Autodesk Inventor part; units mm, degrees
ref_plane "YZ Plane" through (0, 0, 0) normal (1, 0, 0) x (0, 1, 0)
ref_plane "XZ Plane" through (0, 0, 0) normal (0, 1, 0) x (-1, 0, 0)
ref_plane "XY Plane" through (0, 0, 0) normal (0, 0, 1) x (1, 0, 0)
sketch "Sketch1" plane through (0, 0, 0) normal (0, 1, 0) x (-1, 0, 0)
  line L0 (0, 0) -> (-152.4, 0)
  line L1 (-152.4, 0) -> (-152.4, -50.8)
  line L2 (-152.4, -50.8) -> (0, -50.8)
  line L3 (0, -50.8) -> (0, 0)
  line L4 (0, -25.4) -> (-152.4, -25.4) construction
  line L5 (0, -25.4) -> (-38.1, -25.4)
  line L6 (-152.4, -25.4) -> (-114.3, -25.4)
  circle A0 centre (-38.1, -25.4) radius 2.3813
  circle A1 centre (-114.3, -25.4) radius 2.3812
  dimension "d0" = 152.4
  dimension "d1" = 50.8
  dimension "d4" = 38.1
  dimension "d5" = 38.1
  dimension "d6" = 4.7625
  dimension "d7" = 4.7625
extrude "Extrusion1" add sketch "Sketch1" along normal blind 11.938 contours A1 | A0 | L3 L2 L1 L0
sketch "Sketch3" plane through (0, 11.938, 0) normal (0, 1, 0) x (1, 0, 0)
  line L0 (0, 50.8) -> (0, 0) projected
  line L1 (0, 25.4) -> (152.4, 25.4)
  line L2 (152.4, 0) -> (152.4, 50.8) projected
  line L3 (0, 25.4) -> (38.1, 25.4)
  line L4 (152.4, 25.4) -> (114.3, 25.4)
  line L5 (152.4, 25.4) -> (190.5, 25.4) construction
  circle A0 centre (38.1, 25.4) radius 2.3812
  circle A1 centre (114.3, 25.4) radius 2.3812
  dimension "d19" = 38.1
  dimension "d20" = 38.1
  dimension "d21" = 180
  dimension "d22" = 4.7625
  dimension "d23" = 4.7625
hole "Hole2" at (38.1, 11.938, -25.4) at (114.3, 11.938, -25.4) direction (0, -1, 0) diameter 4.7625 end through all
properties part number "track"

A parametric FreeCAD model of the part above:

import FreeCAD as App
import Part
import Sketcher
Q = App.Units.Quantity

doc = App.newDocument("Part")
body = doc.addObject("PartDesign::Body", "Body")

sketch1 = body.newObject("Sketcher::SketchObject", "Sketch")
sketch1.AttachmentSupport = (doc.getObject("XZ_Plane"), [""])
sketch1.MapMode = "FlatFace"
sketch1.addGeometry(Part.LineSegment(App.Vector(0, -25, 0), App.Vector(0, 0, 0)), False)
sketch1.addGeometry(Part.LineSegment(App.Vector(0, 0, 0), App.Vector(152, 0, 0)), False)
sketch1.addGeometry(Part.LineSegment(App.Vector(152, 0, 0), App.Vector(152, -25, 0)), False)
sketch1.addGeometry(Part.LineSegment(App.Vector(152, -25, 0), App.Vector(152, -51, 0)), False)
sketch1.addGeometry(Part.LineSegment(App.Vector(152, -51, 0), App.Vector(0, -51, 0)), False)
sketch1.addGeometry(Part.LineSegment(App.Vector(0, -51, 0), App.Vector(0, -25, 0)), False)
sketch1.addConstraint(Sketcher.Constraint("Coincident", 0, 2, 1, 1))
sketch1.addConstraint(Sketcher.Constraint("Coincident", 1, 2, 2, 1))
sketch1.addConstraint(Sketcher.Constraint("Coincident", 2, 2, 3, 1))
sketch1.addConstraint(Sketcher.Constraint("Coincident", 3, 2, 4, 1))
sketch1.addConstraint(Sketcher.Constraint("Coincident", 4, 2, 5, 1))
sketch1.addConstraint(Sketcher.Constraint("Coincident", 5, 2, 0, 1))
sketch1.addConstraint(Sketcher.Constraint("Vertical", 0))
sketch1.addConstraint(Sketcher.Constraint("Horizontal", 1))
sketch1.addConstraint(Sketcher.Constraint("Vertical", 2))
sketch1.addConstraint(Sketcher.Constraint("Vertical", 3))
sketch1.addConstraint(Sketcher.Constraint("Horizontal", 4))
sketch1.addConstraint(Sketcher.Constraint("Vertical", 5))
sketch1.addConstraint(Sketcher.Constraint("Coincident", 0, 2, -1, 1))
sketch1.addConstraint(Sketcher.Constraint("Horizontal", 2, 2, 5, 2))
sketch1.addConstraint(Sketcher.Constraint("Equal", 2, 3))
sketch1.addConstraint(Sketcher.Constraint("DistanceX", 1, 1, 1, 2, Q("6 in")))
sketch1.addConstraint(Sketcher.Constraint("DistanceY", 3, 2, -1, 1, Q("2 in")))
pad1 = body.newObject("PartDesign::Pad", "Pad")
pad1.Profile = sketch1
pad1.Length = Q("0.47 in")
pad1.Reversed = True

sketch2 = body.newObject("Sketcher::SketchObject", "Sketch001")
sketch2.AttachmentSupport = (doc.getObject("XZ_Plane"), [""])
sketch2.MapMode = "FlatFace"
sketch2.AttachmentOffset = App.Placement(App.Vector(0, 0, -0.47 * 25.4), App.Rotation())
sketch2.addGeometry(Part.Circle(App.Vector(38.1, -25.4, 0), App.Vector(0, 0, 1), 2.4), False)
sketch2.addGeometry(Part.Circle(App.Vector(114.3, -25.4, 0), App.Vector(0, 0, 1), 2.4), False)
sketch2.addConstraint(Sketcher.Constraint("Equal", 0, 1))
sketch2.addConstraint(Sketcher.Constraint("Horizontal", 0, 3, 1, 3))
sketch2.addConstraint(Sketcher.Constraint("Diameter", 0, Q("0.1875 in")))
sketch2.addConstraint(Sketcher.Constraint("DistanceY", 0, 3, -1, 1, Q("1 in")))
sketch2.addConstraint(Sketcher.Constraint("DistanceX", 0, 3, 1, 3, Q("3 in")))
sketch2.addConstraint(Sketcher.Constraint("DistanceX", -1, 1, 0, 3, Q("1.5 in")))
doc.recompute()
hole = body.newObject("PartDesign::Hole", "Hole")
hole.Profile = sketch2
hole.ThreadType = "None"
hole.Diameter = Q("0.1875 in")
hole.DepthType = "ThroughAll"
hole.Reversed = True

doc.recompute()
